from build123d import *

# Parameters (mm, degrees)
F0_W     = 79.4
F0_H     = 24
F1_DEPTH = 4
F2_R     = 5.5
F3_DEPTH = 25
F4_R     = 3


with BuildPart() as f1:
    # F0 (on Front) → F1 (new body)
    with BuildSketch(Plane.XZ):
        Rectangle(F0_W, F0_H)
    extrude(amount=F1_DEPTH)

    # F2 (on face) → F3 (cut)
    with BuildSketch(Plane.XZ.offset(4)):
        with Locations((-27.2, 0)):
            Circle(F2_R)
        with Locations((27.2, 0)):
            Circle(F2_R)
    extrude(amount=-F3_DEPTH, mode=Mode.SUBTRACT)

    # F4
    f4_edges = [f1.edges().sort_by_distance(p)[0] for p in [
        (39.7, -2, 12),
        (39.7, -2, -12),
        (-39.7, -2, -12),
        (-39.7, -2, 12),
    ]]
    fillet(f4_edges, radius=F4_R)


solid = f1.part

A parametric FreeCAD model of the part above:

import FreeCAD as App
import Part
import Sketcher


def edges_at(feature, points):
    """Names of the edges that pass closest to the given points."""
    edges = feature.Shape.Edges
    near = lambda p: min(range(len(edges)), key=lambda i: edges[i].distToShape(Part.Vertex(*p))[0])
    return sorted({f"Edge{near(p) + 1}" for p in points})

doc = App.newDocument("Part")
body = doc.addObject("PartDesign::Body", "Body")

# Sketch on XZ plane
sketch1 = body.newObject("Sketcher::SketchObject", "Sketch")
sketch1.AttachmentSupport = (doc.getObject("XZ_Plane"), [""])
sketch1.MapMode = "FlatFace"
sketch1.addGeometry(Part.LineSegment(App.Vector(-40, 12, 0), App.Vector(-40, -12, 0)), False)
sketch1.addGeometry(Part.LineSegment(App.Vector(-40, -12, 0), App.Vector(40, -12, 0)), False)
sketch1.addGeometry(Part.LineSegment(App.Vector(40, -12, 0), App.Vector(40, 12, 0)), False)
sketch1.addGeometry(Part.LineSegment(App.Vector(40, 12, 0), App.Vector(-40, 12, 0)), False)
sketch1.addConstraint(Sketcher.Constraint("Coincident", 0, 2, 1, 1))
sketch1.addConstraint(Sketcher.Constraint("Coincident", 1, 2, 2, 1))
sketch1.addConstraint(Sketcher.Constraint("Coincident", 2, 2, 3, 1))
sketch1.addConstraint(Sketcher.Constraint("Coincident", 3, 2, 0, 1))
sketch1.addConstraint(Sketcher.Constraint("Vertical", 0))
sketch1.addConstraint(Sketcher.Constraint("Horizontal", 1))
sketch1.addConstraint(Sketcher.Constraint("Vertical", 2))
sketch1.addConstraint(Sketcher.Constraint("Horizontal", 3))
sketch1.addConstraint(Sketcher.Constraint("Symmetric", 0, 2, 2, 2, -1, 1))
sketch1.addConstraint(Sketcher.Constraint("DistanceY", 0, 2, 0, 1, 24.0))
sketch1.addConstraint(Sketcher.Constraint("DistanceX", 1, 1, 1, 2, 79.4))
pad1 = body.newObject("PartDesign::Pad", "Pad")
pad1.Profile = sketch1
pad1.Length = 4

# Sketch on XZ plane
sketch2 = body.newObject("Sketcher::SketchObject", "Sketch001")
sketch2.AttachmentSupport = (doc.getObject("XZ_Plane"), [""])
sketch2.MapMode = "FlatFace"
sketch2.AttachmentOffset = App.Placement(App.Vector(0, 0, 4), App.Rotation())
sketch2.addGeometry(Part.Circle(App.Vector(-27, 0, 0), App.Vector(0, 0, 1), 6), False)
sketch2.addGeometry(Part.Circle(App.Vector(27, 0, 0), App.Vector(0, 0, 1), 6), False)
sketch2.addConstraint(Sketcher.Constraint("Equal", 0, 1))
sketch2.addConstraint(Sketcher.Constraint("Symmetric", 0, 3, 1, 3, -1, 1))
sketch2.addConstraint(Sketcher.Constraint("PointOnObject", 0, 3, -1))
sketch2.addConstraint(Sketcher.Constraint("Diameter", 0, 11.0))
sketch2.addConstraint(Sketcher.Constraint("DistanceX", 0, 3, -1, 1, 27.2))
pocket1 = body.newObject("PartDesign::Pocket", "Pocket")
pocket1.Profile = sketch2
pocket1.Length = 25
doc.recompute()

fillet = body.newObject("PartDesign::Fillet", "Fillet")
fillet.Base = (pocket1, edges_at(pocket1, [
    (39.7, -2, 12),
    (39.7, -2, -12),
    (-39.7, -2, -12),
    (-39.7, -2, 12),
]))
fillet.Radius = 3

doc.recompute()
